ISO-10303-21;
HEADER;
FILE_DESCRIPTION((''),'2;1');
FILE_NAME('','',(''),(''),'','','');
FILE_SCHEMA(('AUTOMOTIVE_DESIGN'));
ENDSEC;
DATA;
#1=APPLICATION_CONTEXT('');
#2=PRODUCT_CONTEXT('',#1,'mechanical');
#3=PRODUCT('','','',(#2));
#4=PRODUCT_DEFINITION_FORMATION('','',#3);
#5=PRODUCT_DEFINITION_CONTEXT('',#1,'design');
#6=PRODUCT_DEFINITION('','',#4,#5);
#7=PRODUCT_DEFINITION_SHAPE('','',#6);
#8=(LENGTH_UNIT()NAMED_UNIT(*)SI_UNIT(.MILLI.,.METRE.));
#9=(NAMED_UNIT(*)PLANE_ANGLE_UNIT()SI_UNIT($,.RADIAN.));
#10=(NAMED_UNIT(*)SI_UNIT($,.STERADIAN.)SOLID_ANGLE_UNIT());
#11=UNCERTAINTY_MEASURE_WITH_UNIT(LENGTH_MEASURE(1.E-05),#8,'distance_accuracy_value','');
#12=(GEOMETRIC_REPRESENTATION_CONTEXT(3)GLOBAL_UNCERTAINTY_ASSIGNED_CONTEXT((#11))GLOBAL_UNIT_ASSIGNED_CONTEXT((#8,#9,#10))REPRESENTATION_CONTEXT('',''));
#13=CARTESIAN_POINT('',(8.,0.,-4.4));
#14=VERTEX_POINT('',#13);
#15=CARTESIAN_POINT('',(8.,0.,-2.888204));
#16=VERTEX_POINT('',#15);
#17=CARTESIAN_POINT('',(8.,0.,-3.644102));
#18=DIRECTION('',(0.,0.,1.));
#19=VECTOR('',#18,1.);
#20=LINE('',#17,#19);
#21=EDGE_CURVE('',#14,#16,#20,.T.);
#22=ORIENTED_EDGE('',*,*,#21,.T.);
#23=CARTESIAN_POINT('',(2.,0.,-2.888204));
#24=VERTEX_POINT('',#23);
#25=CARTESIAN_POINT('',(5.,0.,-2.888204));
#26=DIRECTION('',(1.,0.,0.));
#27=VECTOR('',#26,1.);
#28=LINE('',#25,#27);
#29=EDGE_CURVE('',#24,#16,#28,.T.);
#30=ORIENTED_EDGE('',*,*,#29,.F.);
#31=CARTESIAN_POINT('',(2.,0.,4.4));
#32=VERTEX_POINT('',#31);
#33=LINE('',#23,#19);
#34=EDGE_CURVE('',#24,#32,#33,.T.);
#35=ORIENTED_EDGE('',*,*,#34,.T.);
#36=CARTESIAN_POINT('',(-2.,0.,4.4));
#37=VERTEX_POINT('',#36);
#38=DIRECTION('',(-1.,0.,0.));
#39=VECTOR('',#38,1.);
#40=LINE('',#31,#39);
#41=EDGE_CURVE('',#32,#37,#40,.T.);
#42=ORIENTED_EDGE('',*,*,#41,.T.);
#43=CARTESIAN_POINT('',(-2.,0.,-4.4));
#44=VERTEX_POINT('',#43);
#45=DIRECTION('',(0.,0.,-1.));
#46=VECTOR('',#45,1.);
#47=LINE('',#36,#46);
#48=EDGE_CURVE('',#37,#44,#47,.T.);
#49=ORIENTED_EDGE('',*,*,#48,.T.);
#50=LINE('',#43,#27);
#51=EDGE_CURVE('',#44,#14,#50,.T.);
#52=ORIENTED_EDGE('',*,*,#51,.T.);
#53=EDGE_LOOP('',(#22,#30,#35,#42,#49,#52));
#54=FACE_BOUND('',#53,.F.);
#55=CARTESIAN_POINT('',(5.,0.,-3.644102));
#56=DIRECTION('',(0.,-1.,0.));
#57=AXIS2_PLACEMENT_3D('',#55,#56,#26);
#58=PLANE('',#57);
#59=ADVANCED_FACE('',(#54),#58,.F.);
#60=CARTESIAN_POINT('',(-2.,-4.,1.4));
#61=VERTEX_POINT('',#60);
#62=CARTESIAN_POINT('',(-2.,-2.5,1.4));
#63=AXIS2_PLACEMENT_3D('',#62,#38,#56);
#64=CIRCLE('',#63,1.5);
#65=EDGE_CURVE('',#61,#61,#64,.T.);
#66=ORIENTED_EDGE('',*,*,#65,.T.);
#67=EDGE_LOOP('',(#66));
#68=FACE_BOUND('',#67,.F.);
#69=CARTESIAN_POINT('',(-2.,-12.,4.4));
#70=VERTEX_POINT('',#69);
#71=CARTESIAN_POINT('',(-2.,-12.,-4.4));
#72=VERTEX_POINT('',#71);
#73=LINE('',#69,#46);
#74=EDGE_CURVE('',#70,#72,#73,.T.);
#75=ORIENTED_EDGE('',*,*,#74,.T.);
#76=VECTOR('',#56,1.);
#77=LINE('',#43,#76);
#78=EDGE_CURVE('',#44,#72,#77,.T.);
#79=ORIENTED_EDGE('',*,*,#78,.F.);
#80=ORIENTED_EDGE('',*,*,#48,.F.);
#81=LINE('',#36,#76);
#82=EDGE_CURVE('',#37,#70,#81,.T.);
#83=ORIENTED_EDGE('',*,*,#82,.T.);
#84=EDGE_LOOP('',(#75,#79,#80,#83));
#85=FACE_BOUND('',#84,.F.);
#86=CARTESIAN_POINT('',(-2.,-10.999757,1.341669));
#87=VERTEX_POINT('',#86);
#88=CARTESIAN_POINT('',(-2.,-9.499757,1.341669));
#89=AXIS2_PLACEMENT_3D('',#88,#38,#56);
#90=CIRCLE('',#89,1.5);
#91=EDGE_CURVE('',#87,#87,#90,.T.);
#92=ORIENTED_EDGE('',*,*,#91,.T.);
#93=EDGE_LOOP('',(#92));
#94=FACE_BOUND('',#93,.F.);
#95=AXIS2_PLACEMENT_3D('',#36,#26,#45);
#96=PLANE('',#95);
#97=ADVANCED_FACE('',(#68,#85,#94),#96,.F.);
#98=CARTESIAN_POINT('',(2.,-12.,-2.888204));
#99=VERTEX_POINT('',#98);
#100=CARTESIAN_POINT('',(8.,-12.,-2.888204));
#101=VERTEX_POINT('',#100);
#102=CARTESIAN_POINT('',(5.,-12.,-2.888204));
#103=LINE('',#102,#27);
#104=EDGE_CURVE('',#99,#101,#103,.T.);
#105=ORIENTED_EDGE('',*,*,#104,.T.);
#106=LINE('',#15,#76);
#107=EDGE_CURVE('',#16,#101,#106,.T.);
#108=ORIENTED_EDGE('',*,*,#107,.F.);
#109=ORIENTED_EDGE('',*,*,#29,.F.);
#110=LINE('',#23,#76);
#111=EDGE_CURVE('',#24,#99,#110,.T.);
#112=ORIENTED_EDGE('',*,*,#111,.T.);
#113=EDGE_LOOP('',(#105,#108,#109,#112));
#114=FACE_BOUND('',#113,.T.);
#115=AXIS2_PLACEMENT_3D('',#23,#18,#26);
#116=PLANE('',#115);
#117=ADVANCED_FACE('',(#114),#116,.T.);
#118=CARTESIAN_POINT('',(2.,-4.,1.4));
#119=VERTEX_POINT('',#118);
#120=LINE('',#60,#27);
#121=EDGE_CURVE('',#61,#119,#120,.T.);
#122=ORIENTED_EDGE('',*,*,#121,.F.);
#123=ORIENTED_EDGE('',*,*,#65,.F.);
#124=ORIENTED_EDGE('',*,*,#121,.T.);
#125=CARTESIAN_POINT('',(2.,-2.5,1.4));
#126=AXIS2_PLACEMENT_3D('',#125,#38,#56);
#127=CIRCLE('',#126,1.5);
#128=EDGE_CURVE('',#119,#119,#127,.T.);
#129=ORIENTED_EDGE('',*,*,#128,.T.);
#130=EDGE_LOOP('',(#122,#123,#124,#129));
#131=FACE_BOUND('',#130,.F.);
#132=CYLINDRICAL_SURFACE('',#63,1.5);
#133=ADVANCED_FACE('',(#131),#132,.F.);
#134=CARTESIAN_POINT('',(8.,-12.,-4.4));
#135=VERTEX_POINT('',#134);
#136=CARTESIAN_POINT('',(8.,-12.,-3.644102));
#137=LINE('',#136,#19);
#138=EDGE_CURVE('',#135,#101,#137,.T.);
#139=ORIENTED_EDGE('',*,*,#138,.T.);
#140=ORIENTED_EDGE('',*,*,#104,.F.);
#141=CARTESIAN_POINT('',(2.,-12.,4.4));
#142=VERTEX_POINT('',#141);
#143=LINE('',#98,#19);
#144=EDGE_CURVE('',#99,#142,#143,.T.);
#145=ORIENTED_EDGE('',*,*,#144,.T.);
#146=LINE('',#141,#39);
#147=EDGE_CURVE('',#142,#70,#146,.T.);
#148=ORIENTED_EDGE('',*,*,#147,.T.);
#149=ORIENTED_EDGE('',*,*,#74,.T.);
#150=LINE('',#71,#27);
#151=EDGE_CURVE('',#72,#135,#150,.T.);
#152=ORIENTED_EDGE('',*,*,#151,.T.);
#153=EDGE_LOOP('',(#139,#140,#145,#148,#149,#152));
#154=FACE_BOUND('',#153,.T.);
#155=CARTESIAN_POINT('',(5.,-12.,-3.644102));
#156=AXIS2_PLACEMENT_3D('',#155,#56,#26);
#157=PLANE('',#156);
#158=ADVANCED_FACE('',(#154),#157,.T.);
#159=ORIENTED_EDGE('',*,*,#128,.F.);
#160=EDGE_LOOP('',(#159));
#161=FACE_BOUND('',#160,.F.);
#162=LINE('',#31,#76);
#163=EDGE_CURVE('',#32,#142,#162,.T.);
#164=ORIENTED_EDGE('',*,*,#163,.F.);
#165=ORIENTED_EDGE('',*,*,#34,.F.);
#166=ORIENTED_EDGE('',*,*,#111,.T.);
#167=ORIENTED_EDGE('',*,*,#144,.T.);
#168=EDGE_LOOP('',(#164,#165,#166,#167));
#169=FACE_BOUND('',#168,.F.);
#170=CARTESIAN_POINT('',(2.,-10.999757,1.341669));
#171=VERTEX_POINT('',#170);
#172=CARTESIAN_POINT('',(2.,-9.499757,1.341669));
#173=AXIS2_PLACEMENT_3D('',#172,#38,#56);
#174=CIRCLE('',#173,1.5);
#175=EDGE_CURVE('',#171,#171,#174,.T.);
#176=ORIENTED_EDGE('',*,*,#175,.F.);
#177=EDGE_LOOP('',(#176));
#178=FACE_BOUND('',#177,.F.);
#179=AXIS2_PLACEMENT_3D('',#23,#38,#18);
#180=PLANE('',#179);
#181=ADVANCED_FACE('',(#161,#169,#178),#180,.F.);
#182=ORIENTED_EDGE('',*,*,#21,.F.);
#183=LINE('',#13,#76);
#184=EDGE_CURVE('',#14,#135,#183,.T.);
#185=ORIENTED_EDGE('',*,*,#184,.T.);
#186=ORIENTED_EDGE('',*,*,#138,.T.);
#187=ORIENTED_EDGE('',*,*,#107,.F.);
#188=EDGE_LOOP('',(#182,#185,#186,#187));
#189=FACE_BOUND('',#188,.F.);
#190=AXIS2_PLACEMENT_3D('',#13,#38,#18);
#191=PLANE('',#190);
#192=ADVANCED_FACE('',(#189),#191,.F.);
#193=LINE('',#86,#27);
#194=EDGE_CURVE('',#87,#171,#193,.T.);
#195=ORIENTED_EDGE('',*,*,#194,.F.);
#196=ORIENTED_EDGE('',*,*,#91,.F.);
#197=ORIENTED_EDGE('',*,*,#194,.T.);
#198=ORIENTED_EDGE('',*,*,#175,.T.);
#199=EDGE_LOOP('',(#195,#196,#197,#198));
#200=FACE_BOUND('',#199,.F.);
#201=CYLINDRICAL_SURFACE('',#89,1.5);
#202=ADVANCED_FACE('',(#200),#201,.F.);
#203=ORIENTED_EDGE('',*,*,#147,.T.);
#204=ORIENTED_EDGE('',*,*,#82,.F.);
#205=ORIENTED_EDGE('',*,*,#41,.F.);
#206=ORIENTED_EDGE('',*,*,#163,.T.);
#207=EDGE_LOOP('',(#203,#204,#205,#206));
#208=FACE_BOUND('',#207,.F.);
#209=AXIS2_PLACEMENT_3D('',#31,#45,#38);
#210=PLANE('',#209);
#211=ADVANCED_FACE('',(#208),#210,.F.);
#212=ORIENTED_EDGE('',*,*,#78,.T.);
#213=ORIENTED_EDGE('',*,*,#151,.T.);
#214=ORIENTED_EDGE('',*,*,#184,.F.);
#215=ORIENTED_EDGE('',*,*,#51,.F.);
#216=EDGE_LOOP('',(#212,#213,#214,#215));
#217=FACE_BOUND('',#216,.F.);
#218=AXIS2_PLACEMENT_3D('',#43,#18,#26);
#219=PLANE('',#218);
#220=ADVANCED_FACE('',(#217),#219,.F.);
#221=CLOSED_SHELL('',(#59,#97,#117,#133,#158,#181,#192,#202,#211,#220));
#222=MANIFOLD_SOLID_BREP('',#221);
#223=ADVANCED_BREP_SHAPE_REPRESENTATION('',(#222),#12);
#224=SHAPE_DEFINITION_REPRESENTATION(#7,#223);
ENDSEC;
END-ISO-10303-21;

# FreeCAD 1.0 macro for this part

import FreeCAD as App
import Part
import Sketcher

V = App.Vector

doc = App.newDocument("Part")
body = doc.addObject("PartDesign::Body", "Body")

# Sketch on XZ plane
sketch1 = body.newObject("Sketcher::SketchObject", "Sketch")
sketch1.AttachmentSupport = (doc.getObject("XZ_Plane"), [""])
sketch1.MapMode = "FlatFace"
sketch1.addGeometry([
    Part.LineSegment(V(8, -4.4, 0), V(8, -2.9, 0)),  # 0
    Part.LineSegment(V(8, -2.9, 0), V(2, -2.9, 0)),  # 1
    Part.LineSegment(V(2, -2.9, 0), V(2, 4.4, 0)),  # 2
    Part.LineSegment(V(2, 4.4, 0), V(-2, 4.4, 0)),  # 3
    Part.LineSegment(V(-2, 4.4, 0), V(-2, -4.4, 0)),  # 4
    Part.LineSegment(V(-2, -4.4, 0), V(8, -4.4, 0)),  # 5
], False)
sketch1.addConstraint([
    Sketcher.Constraint("Coincident", 0, 2, 1, 1),
    Sketcher.Constraint("Coincident", 1, 2, 2, 1),
    Sketcher.Constraint("Coincident", 2, 2, 3, 1),
    Sketcher.Constraint("Coincident", 3, 2, 4, 1),
    Sketcher.Constraint("Coincident", 4, 2, 5, 1),
    Sketcher.Constraint("Coincident", 5, 2, 0, 1),
    Sketcher.Constraint("Vertical", 0),
    Sketcher.Constraint("Horizontal", 1),
    Sketcher.Constraint("Vertical", 2),
    Sketcher.Constraint("Horizontal", 3),
    Sketcher.Constraint("Vertical", 4),
    Sketcher.Constraint("Horizontal", 5),
    Sketcher.Constraint("Symmetric", 2, 2, 4, 2, -1, 1),
    Sketcher.Constraint("DistanceX", 1, 2, 1, 1, 6.0),
    Sketcher.Constraint("DistanceX", 3, 2, 3, 1, 4.0),
    Sketcher.Constraint("DistanceY", 4, 2, 4, 1, 8.8),
    Sketcher.Constraint("DistanceY", 0, 1, 0, 2, 1.511796),
])
pad1 = body.newObject("PartDesign::Pad", "Pad")
pad1.Profile = sketch1
pad1.Length = 12

# Sketch on YZ plane
sketch2 = body.newObject("Sketcher::SketchObject", "Sketch001")
sketch2.AttachmentSupport = (doc.getObject("YZ_Plane"), [""])
sketch2.MapMode = "FlatFace"
sketch2.AttachmentOffset = App.Placement(V(0, 0, -2), App.Rotation())
sketch2.addGeometry([
    Part.Circle(V(-2.5, 1.4, 0), V(0, 0, 1), 1.5),
    Part.Circle(V(-9.5, 1.3, 0), V(0, 0, 1), 1.5),
], False)
sketch2.addConstraint([
    Sketcher.Constraint("Equal", 0, 1),
    Sketcher.Constraint("Diameter", 0, 3.0),
    Sketcher.Constraint("DistanceX", 0, 3, -1, 1, 2.5),
    Sketcher.Constraint("DistanceY", -1, 1, 0, 3, 1.4),
    Sketcher.Constraint("DistanceY", -1, 1, 1, 3, 1.341669),
    Sketcher.Constraint("DistanceX", 1, 3, -1, 1, 9.499757),
])
pocket1 = body.newObject("PartDesign::Pocket", "Pocket")
pocket1.Profile = sketch2
pocket1.Length = 25
pocket1.Reversed = True

doc.recompute()
